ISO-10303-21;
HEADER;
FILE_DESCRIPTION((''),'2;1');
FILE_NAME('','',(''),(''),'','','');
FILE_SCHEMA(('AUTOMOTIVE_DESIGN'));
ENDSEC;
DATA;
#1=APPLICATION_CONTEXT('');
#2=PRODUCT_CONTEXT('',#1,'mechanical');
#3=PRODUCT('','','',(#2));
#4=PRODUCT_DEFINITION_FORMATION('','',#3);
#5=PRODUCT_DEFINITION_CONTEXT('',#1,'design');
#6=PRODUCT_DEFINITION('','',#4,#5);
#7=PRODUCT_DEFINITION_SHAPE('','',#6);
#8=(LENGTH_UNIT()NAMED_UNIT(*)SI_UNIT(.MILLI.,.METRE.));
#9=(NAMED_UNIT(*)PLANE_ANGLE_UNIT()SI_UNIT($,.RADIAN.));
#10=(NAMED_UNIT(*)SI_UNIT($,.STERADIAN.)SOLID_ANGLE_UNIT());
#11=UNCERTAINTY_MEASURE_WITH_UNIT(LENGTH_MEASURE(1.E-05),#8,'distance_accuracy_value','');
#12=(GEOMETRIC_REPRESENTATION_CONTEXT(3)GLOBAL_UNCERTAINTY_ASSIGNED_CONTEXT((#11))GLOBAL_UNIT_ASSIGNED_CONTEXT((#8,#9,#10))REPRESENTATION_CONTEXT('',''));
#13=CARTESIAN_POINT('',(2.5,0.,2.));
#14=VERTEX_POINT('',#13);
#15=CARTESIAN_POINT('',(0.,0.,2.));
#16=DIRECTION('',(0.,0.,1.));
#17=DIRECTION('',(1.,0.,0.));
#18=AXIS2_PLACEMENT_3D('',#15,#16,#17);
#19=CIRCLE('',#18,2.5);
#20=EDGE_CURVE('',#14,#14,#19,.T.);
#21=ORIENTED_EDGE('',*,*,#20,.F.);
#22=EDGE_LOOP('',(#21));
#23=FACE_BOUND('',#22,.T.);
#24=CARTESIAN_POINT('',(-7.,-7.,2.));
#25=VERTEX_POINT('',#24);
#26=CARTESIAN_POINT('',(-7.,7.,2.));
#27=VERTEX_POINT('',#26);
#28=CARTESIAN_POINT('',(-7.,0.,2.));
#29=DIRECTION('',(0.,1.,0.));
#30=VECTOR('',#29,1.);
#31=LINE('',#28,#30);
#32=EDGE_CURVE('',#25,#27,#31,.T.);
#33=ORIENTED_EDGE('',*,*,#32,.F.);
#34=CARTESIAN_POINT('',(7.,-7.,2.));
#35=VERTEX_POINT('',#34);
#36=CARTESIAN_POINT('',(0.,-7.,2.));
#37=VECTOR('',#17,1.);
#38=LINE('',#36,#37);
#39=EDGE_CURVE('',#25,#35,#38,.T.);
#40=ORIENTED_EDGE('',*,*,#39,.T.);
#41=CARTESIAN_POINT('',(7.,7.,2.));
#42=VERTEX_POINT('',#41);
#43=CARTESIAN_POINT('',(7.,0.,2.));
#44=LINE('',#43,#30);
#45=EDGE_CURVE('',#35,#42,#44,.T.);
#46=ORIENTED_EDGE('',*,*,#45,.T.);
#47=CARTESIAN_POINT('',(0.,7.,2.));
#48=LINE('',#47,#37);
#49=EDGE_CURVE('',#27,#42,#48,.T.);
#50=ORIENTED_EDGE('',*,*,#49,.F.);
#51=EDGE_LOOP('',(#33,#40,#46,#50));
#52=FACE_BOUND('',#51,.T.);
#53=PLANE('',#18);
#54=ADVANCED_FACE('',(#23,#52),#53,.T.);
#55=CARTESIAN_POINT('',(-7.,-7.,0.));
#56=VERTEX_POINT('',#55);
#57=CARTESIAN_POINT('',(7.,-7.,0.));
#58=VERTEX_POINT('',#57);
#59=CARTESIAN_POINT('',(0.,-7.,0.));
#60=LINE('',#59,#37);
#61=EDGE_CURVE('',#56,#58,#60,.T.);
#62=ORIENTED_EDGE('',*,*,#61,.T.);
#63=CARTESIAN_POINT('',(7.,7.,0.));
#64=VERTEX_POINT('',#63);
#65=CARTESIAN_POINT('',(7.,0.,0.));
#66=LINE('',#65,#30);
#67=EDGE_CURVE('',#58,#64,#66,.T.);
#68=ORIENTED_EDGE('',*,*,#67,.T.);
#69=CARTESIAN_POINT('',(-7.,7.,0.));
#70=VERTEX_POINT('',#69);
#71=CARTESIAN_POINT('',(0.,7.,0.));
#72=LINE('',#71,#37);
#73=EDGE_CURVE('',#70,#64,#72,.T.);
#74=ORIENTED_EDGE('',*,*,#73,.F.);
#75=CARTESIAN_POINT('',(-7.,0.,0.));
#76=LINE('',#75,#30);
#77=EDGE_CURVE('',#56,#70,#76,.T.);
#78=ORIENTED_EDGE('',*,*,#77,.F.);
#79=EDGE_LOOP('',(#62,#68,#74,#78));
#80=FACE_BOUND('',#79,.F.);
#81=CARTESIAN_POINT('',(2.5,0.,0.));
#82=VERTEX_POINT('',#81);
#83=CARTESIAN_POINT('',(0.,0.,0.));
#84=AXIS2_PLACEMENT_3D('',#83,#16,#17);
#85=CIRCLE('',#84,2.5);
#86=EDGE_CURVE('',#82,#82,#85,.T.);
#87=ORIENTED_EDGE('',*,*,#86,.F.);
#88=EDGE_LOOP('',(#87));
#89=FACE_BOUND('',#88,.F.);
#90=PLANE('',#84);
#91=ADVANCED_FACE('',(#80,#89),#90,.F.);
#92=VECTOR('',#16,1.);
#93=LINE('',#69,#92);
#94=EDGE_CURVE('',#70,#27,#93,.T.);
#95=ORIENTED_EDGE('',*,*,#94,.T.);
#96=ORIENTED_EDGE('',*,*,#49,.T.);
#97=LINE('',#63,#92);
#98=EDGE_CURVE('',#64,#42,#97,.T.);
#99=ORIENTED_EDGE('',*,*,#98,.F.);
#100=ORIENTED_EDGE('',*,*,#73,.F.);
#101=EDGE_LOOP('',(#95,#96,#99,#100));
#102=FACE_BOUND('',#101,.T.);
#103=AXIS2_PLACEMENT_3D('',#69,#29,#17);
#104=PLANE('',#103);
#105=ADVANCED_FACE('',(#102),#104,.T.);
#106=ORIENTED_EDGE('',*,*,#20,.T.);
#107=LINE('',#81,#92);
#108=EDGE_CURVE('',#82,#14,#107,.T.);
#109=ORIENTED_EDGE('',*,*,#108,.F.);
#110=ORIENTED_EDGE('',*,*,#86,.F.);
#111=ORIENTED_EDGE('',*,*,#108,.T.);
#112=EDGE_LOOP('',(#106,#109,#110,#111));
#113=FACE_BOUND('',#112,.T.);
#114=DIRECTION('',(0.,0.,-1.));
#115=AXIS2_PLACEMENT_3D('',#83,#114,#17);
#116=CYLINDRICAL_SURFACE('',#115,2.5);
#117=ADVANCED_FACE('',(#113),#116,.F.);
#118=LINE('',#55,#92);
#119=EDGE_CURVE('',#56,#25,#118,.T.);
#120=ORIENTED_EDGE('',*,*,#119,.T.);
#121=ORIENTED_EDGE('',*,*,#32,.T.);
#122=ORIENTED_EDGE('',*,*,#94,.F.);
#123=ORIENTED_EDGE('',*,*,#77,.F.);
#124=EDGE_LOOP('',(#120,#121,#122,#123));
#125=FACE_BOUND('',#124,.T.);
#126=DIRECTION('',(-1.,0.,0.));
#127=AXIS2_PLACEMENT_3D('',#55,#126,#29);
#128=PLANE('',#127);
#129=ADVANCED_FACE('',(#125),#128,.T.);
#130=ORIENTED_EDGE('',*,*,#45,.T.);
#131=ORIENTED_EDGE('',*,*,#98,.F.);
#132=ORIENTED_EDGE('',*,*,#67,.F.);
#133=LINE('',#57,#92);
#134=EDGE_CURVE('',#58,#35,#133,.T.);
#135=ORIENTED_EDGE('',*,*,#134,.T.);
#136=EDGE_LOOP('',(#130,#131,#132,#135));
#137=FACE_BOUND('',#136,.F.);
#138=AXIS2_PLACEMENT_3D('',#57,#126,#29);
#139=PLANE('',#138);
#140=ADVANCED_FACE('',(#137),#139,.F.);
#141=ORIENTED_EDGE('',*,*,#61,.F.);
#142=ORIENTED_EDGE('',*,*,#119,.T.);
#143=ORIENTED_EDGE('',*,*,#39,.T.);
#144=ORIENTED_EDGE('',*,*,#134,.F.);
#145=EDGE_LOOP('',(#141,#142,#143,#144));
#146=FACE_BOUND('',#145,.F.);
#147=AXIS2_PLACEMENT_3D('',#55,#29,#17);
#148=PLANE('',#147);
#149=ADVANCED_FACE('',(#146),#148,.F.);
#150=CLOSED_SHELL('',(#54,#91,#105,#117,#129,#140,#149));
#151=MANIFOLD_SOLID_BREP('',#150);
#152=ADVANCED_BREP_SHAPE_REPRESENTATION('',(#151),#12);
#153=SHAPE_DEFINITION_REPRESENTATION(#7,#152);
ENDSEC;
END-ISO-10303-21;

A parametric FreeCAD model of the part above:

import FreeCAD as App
import Part
import Sketcher

V = App.Vector
Q = App.Units.Quantity


def add_polygon(sketch, points):
    """Adds a closed chain of lines whose ends are joined by coincident constraints."""
    first, n = sketch.GeometryCount, len(points)
    for a, b in zip(points, points[1:] + points[:1]):
        sketch.addGeometry(Part.LineSegment(App.Vector(*a, 0), App.Vector(*b, 0)), False)
    for i in range(n):
        sketch.addConstraint(Sketcher.Constraint("Coincident", first + i, 2, first + (i + 1) % n, 1))

doc = App.newDocument("Part")
params = doc.addObject("Spreadsheet::Sheet", "Params")
for row, (alias, value) in enumerate([
    ("sketch1_diameter", "5 mm"),
    ("sketch1_width", "14 mm"),
    ("pad1_length", "2 mm"),
], start=1):
    params.set(f"A{row}", alias)
    params.set(f"B{row}", "=" + value)
    params.setAlias(f"B{row}", alias)

body = doc.addObject("PartDesign::Body", "Body")

# Sketch on XY plane
sketch1 = body.newObject("Sketcher::SketchObject", "Sketch")
sketch1.AttachmentSupport = (doc.getObject("XY_Plane"), [""])
sketch1.MapMode = "FlatFace"
add_polygon(sketch1, [(-7, 7), (-7, -7), (7, -7), (7, 7)])  # lines 0-3
sketch1.addGeometry(Part.Circle(V(0, 0, 0), V(0, 0, 1), 2.5), False)  # 4
sketch1.addConstraint(Sketcher.Constraint("Vertical", 0))
sketch1.addConstraint(Sketcher.Constraint("Horizontal", 1))
sketch1.addConstraint(Sketcher.Constraint("Vertical", 2))
sketch1.addConstraint(Sketcher.Constraint("Horizontal", 3))
sketch1.addConstraint(Sketcher.Constraint("Coincident", 4, 3, -1, 1))
sketch1.addConstraint(Sketcher.Constraint("Symmetric", 0, 2, 2, 2, -1, 1))
sketch1.addConstraint(Sketcher.Constraint("Equal", 3, 0))
sketch1.addConstraint(Sketcher.Constraint("Diameter", 4, Q("5 mm")))
sketch1.addConstraint(Sketcher.Constraint("DistanceX", 1, 1, 1, 2, Q("14 mm")))
sketch1.setExpression("Constraints[11]", "Params.sketch1_diameter")
sketch1.setExpression("Constraints[12]", "Params.sketch1_width")
pad1 = body.newObject("PartDesign::Pad", "Pad")
pad1.Profile = sketch1
pad1.setExpression("Length", "Params.pad1_length")

doc.recompute()
